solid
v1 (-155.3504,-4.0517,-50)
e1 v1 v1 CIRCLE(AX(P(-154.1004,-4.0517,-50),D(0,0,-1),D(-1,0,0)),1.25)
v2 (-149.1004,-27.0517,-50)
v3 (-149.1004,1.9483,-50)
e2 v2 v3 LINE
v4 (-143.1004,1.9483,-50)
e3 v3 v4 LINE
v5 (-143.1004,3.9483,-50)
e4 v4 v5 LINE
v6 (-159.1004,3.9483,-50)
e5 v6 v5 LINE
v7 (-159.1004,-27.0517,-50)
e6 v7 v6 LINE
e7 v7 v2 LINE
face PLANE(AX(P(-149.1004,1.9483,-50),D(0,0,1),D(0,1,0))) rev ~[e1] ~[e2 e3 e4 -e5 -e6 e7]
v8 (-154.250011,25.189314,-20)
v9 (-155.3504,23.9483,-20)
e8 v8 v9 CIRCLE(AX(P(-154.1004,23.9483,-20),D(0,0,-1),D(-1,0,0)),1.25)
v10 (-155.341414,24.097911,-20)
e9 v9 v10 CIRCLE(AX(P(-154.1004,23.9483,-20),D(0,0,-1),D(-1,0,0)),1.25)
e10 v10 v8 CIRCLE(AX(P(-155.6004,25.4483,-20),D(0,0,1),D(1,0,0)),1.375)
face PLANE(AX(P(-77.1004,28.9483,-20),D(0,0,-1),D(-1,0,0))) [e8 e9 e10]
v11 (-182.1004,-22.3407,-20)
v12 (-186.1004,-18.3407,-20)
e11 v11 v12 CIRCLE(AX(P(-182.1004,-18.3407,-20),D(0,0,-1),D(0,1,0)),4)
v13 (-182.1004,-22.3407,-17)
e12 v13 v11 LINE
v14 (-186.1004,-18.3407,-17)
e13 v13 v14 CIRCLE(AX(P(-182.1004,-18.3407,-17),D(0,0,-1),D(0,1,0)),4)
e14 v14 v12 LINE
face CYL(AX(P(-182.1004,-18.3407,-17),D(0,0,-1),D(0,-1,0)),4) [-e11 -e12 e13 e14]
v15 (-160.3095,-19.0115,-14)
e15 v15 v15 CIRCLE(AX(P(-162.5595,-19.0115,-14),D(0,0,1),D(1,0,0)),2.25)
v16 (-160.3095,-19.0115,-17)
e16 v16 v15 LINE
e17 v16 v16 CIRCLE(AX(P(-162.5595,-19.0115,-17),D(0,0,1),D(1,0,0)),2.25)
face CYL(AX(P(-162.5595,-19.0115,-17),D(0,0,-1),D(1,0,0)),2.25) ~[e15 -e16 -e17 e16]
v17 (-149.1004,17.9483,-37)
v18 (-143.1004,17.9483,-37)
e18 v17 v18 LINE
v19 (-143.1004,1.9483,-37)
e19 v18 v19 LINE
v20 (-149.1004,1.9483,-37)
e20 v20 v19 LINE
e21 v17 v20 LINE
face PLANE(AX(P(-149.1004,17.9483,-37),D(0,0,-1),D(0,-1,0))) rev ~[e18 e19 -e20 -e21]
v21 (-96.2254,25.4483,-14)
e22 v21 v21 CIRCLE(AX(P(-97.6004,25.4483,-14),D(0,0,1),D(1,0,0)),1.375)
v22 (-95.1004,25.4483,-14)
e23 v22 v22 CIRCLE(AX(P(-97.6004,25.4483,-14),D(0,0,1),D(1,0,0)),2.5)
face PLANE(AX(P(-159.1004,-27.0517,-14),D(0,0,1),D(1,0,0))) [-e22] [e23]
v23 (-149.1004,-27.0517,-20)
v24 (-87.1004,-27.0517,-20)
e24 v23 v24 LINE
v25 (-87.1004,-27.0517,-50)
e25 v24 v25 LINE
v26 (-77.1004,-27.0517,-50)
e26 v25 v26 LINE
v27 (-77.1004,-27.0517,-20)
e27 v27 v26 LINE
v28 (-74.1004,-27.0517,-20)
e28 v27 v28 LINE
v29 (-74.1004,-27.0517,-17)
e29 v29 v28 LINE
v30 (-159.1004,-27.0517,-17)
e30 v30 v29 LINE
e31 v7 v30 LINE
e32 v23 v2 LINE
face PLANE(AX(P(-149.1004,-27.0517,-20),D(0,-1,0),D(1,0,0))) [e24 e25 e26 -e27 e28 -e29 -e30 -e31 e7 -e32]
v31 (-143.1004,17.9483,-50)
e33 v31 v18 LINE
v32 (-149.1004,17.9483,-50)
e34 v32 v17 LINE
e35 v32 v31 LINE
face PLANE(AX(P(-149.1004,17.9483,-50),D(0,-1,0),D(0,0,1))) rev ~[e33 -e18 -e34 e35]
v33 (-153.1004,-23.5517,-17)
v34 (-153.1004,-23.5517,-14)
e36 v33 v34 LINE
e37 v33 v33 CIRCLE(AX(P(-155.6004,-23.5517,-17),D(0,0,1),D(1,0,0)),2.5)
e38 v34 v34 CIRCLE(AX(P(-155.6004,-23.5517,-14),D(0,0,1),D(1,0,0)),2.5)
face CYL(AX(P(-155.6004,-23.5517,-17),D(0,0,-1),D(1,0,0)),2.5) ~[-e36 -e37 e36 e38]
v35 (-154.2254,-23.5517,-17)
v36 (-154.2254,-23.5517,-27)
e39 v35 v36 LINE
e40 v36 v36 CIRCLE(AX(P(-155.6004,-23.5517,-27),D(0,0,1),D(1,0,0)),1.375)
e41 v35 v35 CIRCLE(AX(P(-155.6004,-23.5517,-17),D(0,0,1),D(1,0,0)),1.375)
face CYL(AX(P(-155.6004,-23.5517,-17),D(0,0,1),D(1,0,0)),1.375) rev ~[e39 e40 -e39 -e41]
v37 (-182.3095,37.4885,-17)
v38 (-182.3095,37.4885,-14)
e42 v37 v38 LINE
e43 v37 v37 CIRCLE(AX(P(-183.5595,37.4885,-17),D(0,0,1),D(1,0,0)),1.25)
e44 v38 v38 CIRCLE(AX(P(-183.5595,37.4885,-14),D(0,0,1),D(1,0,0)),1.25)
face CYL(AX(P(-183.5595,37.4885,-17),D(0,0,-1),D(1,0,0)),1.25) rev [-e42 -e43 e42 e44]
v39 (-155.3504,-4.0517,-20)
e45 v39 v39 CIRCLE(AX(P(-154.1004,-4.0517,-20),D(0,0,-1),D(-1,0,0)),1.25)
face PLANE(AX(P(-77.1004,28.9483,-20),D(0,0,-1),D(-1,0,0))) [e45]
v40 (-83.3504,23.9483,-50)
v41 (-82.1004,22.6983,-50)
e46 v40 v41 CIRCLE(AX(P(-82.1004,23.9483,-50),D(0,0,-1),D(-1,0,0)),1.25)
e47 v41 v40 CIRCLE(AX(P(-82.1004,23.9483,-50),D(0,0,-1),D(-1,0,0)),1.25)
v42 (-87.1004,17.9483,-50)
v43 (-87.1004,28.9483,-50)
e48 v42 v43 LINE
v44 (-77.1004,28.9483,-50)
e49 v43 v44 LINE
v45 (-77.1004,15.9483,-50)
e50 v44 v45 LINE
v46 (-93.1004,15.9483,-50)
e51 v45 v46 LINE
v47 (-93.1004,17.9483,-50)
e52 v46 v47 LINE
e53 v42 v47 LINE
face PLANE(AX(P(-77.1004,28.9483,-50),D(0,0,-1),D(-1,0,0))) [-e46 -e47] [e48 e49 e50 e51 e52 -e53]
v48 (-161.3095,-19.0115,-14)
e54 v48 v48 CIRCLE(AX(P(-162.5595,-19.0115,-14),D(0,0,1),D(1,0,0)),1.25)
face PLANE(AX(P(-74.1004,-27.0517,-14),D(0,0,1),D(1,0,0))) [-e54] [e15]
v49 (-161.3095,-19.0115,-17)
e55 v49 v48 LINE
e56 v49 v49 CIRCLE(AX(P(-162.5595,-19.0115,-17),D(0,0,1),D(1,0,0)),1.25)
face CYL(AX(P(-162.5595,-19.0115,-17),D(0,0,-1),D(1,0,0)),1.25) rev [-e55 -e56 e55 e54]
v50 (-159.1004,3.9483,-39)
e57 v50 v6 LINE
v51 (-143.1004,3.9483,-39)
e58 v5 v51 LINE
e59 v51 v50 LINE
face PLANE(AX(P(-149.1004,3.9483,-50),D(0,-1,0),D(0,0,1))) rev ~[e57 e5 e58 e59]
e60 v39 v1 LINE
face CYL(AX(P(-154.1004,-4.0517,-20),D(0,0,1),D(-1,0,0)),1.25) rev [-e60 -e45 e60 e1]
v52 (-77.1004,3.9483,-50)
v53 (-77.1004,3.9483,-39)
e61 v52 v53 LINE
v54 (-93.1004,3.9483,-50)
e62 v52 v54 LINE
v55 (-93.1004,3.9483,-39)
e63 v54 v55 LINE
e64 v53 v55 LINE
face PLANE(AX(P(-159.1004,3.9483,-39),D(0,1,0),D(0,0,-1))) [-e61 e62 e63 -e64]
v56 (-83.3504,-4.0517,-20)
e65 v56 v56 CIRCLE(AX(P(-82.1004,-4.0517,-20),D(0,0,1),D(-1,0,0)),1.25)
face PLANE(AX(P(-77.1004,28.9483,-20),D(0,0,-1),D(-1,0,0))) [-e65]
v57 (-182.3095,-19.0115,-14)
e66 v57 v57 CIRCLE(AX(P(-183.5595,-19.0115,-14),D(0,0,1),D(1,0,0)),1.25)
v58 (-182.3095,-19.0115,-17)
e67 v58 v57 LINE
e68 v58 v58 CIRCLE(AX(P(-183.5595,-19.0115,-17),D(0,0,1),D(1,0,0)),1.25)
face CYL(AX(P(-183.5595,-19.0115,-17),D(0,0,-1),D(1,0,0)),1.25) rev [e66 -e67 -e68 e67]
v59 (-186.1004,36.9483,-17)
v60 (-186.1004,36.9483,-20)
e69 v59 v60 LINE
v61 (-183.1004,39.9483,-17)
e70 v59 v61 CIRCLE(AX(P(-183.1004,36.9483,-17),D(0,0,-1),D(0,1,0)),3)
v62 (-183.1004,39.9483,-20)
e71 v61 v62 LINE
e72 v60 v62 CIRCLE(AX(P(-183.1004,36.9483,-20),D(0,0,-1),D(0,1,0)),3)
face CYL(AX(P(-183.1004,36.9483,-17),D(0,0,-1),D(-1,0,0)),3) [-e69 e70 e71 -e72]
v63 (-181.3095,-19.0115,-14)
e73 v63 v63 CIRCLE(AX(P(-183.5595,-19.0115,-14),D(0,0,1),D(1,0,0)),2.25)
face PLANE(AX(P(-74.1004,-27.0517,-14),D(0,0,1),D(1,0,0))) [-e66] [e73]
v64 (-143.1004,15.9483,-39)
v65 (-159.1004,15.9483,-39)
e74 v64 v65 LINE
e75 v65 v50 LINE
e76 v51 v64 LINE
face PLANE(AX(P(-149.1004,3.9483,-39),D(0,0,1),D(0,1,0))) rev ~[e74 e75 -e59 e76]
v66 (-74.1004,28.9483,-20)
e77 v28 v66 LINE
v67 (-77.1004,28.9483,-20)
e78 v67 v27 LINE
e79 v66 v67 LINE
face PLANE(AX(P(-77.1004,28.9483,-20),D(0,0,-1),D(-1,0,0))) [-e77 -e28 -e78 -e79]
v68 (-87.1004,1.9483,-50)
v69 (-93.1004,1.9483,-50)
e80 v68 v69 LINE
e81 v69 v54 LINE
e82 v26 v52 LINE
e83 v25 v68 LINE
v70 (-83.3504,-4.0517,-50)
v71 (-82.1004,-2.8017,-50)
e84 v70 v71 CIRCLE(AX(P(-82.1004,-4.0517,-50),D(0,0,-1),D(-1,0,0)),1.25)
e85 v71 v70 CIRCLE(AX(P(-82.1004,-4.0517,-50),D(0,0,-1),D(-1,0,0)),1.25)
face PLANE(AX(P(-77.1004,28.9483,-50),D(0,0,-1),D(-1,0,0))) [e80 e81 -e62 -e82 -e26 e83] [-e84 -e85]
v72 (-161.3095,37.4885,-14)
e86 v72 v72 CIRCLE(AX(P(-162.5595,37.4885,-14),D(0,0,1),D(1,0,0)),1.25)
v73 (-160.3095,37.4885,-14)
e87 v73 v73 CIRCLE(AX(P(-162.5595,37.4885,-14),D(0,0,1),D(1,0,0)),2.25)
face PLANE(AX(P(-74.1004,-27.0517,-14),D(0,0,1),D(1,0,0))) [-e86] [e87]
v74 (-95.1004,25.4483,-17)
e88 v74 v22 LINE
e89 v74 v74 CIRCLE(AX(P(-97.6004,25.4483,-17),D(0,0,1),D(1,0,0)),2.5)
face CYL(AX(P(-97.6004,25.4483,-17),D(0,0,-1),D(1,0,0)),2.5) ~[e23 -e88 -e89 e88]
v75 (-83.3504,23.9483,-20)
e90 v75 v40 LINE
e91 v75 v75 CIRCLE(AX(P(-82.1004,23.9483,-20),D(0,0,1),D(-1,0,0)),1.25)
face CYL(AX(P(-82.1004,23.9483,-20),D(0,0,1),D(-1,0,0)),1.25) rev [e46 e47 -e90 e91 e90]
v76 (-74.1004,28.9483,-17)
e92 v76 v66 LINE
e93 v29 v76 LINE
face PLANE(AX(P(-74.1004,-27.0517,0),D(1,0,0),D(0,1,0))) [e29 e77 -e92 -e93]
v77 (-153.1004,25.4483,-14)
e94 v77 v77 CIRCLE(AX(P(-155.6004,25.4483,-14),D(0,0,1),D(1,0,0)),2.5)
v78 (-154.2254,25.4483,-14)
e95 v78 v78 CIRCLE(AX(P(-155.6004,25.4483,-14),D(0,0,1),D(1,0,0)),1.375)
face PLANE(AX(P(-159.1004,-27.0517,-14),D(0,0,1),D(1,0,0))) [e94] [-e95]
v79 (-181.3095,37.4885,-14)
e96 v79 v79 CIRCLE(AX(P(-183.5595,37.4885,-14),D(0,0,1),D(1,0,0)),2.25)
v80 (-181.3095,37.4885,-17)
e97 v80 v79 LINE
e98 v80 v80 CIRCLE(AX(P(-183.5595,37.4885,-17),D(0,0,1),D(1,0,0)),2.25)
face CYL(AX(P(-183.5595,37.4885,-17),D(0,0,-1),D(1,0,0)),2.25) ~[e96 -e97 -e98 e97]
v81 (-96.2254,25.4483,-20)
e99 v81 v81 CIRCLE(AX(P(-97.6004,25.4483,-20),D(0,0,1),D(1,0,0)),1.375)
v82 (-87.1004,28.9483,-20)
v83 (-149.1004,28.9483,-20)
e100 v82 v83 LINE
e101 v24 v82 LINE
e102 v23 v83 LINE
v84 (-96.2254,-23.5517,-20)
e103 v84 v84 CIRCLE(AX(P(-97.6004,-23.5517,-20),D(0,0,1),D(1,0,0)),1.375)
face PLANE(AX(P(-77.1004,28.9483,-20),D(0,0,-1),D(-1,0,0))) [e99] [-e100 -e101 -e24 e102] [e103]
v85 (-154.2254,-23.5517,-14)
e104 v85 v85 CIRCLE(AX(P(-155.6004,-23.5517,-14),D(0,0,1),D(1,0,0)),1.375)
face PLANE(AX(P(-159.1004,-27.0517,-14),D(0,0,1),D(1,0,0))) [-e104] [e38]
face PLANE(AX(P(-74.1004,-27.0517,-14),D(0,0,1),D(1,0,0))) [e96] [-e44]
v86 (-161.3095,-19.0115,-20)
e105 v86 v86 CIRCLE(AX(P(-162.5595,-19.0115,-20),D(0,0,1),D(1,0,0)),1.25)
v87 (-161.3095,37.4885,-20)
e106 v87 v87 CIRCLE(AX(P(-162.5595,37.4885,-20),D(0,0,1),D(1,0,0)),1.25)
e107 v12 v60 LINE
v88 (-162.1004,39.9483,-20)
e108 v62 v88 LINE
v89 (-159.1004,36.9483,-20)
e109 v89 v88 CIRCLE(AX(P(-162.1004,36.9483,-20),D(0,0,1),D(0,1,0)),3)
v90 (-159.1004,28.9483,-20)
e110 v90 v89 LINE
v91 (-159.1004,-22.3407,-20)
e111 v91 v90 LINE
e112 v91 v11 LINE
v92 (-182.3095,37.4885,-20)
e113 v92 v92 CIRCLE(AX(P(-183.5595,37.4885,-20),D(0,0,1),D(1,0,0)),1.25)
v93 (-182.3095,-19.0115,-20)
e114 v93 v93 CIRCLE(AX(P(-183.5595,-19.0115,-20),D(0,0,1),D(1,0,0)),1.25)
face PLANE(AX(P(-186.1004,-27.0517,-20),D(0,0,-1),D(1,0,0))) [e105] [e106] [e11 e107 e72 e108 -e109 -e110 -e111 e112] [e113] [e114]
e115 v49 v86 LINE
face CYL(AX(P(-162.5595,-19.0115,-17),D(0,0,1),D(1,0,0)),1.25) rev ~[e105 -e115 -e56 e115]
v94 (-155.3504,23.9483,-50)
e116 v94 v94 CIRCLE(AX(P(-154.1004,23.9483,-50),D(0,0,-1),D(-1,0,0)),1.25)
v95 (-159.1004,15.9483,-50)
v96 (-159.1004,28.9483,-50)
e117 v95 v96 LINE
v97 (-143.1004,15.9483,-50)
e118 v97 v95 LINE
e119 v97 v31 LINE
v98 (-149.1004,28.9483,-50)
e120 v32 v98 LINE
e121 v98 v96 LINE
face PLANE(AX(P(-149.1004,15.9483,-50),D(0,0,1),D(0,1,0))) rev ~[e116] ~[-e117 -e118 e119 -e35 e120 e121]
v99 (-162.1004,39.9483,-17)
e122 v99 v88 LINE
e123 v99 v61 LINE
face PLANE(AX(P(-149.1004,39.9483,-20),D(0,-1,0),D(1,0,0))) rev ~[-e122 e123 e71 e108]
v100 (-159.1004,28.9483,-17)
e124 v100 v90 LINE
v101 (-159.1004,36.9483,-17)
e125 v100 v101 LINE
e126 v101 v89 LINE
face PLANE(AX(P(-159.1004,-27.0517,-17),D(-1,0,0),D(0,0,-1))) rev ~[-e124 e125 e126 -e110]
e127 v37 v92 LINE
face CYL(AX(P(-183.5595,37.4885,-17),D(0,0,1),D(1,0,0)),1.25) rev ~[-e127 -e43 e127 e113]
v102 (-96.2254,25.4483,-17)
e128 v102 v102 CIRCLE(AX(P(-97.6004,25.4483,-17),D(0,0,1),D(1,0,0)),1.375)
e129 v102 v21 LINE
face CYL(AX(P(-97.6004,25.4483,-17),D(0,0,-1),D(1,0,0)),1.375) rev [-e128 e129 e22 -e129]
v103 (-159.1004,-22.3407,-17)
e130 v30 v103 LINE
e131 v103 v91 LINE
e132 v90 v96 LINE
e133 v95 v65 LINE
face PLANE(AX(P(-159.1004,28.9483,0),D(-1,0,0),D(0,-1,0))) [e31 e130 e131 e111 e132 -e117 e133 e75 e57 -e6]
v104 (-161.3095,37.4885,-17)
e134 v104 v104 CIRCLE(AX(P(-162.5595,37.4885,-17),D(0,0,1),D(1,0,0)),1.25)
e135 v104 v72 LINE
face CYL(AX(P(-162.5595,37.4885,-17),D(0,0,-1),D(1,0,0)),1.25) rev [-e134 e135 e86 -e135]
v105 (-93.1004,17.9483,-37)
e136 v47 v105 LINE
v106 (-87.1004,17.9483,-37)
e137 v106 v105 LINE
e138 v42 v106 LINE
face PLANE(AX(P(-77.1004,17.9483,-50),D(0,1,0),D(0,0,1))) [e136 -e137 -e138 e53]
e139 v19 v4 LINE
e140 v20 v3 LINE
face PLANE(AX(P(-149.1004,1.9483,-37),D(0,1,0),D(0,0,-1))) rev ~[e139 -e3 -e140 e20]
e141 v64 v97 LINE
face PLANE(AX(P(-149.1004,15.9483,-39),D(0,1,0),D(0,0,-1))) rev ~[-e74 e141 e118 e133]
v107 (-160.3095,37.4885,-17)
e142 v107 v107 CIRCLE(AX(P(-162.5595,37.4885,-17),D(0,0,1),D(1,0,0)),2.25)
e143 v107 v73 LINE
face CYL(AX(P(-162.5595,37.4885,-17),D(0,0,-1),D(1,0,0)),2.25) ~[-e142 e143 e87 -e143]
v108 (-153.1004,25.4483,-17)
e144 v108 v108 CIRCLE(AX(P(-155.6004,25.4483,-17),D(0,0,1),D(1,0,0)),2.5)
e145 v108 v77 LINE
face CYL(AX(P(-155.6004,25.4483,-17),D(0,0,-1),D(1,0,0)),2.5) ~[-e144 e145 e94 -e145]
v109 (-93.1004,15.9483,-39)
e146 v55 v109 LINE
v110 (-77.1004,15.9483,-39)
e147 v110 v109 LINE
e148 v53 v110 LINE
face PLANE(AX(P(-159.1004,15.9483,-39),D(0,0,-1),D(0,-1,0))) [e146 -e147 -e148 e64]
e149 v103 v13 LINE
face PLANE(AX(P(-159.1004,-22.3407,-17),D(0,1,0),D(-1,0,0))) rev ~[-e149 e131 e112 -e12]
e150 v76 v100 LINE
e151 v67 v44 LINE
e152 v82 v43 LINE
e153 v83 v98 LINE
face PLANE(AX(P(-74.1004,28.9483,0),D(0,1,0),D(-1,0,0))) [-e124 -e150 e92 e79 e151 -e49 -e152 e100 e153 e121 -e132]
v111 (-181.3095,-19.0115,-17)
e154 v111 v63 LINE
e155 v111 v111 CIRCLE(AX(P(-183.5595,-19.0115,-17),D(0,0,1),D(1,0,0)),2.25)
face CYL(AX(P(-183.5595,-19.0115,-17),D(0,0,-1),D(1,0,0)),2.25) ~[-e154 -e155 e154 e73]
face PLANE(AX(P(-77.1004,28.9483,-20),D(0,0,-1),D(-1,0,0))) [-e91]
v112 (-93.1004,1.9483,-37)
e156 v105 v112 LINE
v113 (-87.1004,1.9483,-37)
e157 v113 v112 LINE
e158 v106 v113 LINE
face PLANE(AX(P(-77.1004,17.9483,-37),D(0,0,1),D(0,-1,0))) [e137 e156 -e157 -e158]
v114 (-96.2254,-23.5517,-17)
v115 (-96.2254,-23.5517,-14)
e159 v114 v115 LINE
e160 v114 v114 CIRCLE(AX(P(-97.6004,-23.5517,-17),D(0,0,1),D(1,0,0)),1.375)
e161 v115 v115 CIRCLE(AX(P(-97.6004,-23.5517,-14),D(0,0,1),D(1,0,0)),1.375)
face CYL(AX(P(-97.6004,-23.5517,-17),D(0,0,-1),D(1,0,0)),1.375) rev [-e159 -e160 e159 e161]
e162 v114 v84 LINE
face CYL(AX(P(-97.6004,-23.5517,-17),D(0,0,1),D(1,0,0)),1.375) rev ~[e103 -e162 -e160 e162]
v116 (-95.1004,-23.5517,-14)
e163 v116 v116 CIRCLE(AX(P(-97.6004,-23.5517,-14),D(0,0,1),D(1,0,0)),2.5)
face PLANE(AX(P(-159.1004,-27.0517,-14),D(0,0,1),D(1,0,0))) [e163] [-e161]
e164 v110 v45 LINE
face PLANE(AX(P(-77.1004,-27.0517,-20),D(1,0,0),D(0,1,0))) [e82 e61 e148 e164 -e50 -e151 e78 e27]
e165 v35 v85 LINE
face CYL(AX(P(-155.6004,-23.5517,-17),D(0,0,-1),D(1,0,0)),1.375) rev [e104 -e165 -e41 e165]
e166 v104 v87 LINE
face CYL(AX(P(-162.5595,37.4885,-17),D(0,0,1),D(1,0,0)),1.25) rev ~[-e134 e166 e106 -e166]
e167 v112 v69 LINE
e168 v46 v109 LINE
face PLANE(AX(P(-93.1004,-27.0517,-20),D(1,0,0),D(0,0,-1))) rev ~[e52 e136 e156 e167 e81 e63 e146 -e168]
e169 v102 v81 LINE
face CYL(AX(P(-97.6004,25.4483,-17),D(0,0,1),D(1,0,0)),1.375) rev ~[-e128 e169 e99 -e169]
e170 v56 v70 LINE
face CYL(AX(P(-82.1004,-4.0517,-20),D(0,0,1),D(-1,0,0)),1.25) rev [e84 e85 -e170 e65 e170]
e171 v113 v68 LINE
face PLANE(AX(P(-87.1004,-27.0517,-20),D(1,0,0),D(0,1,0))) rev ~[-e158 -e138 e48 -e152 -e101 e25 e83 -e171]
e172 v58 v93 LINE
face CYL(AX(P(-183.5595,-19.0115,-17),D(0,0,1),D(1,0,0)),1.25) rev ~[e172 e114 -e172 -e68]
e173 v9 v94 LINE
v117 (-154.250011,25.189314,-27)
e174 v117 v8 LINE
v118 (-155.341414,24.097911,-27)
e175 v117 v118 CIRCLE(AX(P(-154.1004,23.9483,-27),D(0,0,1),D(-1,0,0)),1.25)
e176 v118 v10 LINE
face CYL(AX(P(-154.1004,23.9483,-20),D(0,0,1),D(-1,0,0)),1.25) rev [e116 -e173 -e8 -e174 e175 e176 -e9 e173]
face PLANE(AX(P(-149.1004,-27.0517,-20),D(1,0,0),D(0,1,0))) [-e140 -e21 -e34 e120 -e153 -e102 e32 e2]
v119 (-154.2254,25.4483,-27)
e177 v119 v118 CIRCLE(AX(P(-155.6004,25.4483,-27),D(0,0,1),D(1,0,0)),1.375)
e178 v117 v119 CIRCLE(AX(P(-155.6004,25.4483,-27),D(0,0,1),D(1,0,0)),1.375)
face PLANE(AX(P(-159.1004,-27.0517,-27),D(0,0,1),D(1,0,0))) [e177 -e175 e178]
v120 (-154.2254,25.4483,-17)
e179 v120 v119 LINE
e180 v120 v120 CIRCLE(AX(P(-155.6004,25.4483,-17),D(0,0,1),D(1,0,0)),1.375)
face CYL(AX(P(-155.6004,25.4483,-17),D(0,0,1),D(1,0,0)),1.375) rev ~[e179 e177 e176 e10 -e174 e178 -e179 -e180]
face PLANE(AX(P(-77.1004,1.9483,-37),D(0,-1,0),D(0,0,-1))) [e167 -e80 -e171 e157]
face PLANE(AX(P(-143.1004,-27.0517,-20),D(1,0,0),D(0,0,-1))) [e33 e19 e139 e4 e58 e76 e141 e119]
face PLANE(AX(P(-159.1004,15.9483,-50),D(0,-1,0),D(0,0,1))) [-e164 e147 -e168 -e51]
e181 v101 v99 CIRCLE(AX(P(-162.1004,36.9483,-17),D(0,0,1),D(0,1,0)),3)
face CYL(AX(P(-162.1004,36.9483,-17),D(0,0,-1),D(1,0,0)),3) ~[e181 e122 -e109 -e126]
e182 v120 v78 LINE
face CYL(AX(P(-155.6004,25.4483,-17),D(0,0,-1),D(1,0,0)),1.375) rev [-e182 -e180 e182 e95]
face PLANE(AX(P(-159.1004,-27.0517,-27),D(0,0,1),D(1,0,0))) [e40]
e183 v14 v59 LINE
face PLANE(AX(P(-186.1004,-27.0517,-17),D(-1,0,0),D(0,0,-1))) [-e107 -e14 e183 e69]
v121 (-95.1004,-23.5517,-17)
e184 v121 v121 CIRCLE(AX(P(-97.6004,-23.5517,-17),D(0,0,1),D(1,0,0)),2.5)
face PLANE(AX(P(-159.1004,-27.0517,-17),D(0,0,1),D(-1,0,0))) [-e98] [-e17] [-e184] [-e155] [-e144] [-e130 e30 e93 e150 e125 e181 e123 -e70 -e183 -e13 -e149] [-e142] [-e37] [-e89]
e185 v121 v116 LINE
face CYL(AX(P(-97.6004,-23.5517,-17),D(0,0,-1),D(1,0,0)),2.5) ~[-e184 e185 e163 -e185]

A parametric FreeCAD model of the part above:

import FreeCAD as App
import Part
import Sketcher


def edges_at(feature, points):
    """Names of the edges that pass closest to the given points."""
    edges = feature.Shape.Edges
    near = lambda p: min(range(len(edges)), key=lambda i: edges[i].distToShape(Part.Vertex(*p))[0])
    return sorted({f"Edge{near(p) + 1}" for p in points})


def add_polygon(sketch, points):
    """Adds a closed chain of lines whose ends are joined by coincident constraints."""
    first, n = sketch.GeometryCount, len(points)
    for a, b in zip(points, points[1:] + points[:1]):
        sketch.addGeometry(Part.LineSegment(App.Vector(*a, 0), App.Vector(*b, 0)), False)
    for i in range(n):
        sketch.addConstraint(Sketcher.Constraint("Coincident", first + i, 2, first + (i + 1) % n, 1))

doc = App.newDocument("Part")
body = doc.addObject("PartDesign::Body", "Body")
body.AllowCompound = True

sketch1 = body.newObject("Sketcher::SketchObject", "Sketch")
sketch1.AttachmentSupport = (doc.getObject("XY_Plane"), [""])
sketch1.MapMode = "FlatFace"
add_polygon(sketch1, [(-74, -27), (-159, -27), (-159, 29), (-74, 29)])
sketch1.addConstraint([
    Sketcher.Constraint("Horizontal", 0),
    Sketcher.Constraint("Vertical", 1),
    Sketcher.Constraint("Horizontal", 2),
    Sketcher.Constraint("Vertical", 3),
    Sketcher.Constraint("DistanceX", 0, 2, 0, 1, 85.0),
    Sketcher.Constraint("DistanceY", 1, 1, 1, 2, 56.0),
    Sketcher.Constraint("DistanceX", 0, 2, -1, 1, 159.1004),
    Sketcher.Constraint("DistanceY", 0, 2, -1, 1, 27.0517),
])
pad1 = body.newObject("PartDesign::Pad", "Pad")
pad1.Profile = sketch1
pad1.Length = 20
pad1.Reversed = True

sketch2 = body.newObject("Sketcher::SketchObject", "Sketch001")
sketch2.AttachmentSupport = (doc.getObject("XY_Plane"), [""])
sketch2.MapMode = "FlatFace"
add_polygon(sketch2, [(-51.5, 34.8), (-168.2, 34.8), (-168.2, -41.7), (-51.5, -41.7)])
sketch2.addGeometry(Part.Circle(App.Vector(-155.6, -23.6, 0), App.Vector(0, 0, 1), 1.4), False)
sketch2.addGeometry(Part.Circle(App.Vector(-97.6, -23.6, 0), App.Vector(0, 0, 1), 1.4), False)
sketch2.addGeometry(Part.Circle(App.Vector(-155.6, 25.4, 0), App.Vector(0, 0, 1), 1.4), False)
sketch2.addGeometry(Part.Circle(App.Vector(-97.6, 25.4, 0), App.Vector(0, 0, 1), 1.4), False)
sketch2.addConstraint([
    Sketcher.Constraint("Horizontal", 0),
    Sketcher.Constraint("Vertical", 1),
    Sketcher.Constraint("Horizontal", 2),
    Sketcher.Constraint("Vertical", 3),
    Sketcher.Constraint("Equal", 4, 5),
    Sketcher.Constraint("Equal", 5, 6),
    Sketcher.Constraint("Equal", 6, 7),
    Sketcher.Constraint("Horizontal", 4, 3, 5, 3),
    Sketcher.Constraint("Horizontal", 6, 3, 7, 3),
    Sketcher.Constraint("Vertical", 4, 3, 6, 3),
    Sketcher.Constraint("Vertical", 5, 3, 7, 3),
    Sketcher.Constraint("Diameter", 4, 2.75),
    Sketcher.Constraint("DistanceX", 4, 3, 5, 3, 58.0),
    Sketcher.Constraint("DistanceY", 4, 3, 6, 3, 49.0),
    Sketcher.Constraint("DistanceX", 0, 2, 0, 1, 116.712),
    Sketcher.Constraint("DistanceY", 1, 2, 1, 1, 76.511),
    Sketcher.Constraint("DistanceY", -1, 1, 0, 2, 34.785),
    Sketcher.Constraint("DistanceX", 5, 3, 2, 2, 46.085),
    Sketcher.Constraint("DistanceX", 4, 3, -1, 1, 155.6004),
    Sketcher.Constraint("DistanceY", 4, 3, -1, 1, 23.5517),
])
pocket1 = body.newObject("PartDesign::Pocket", "Pocket")
pocket1.Profile = sketch2
pocket1.Length = 10

sketch3 = body.newObject("Sketcher::SketchObject", "Sketch002")
sketch3.AttachmentSupport = (doc.getObject("XY_Plane"), [""])
sketch3.MapMode = "FlatFace"
sketch3.AttachmentOffset = App.Placement(App.Vector(0, 0, -20), App.Rotation())
add_polygon(sketch3, [(-77.1, 28.9), (-77.1, -27.1), (-87.1, -27.1), (-87.1, 28.9)])
sketch3.addGeometry(Part.Circle(App.Vector(-82.1, -4.1, 0), App.Vector(0, 0, 1), 1.2), False)
sketch3.addGeometry(Part.Circle(App.Vector(-82.1, 23.9, 0), App.Vector(0, 0, 1), 1.2), False)
add_polygon(sketch3, [(-149.1, 28.9), (-149.1, -27.1), (-159.1, -27.1), (-159.1, 28.9)])
sketch3.addGeometry(Part.Circle(App.Vector(-154.1, -4.1, 0), App.Vector(0, 0, 1), 1.2), False)
sketch3.addGeometry(Part.Circle(App.Vector(-154.1, 23.9, 0), App.Vector(0, 0, 1), 1.2), False)
sketch3.addConstraint([
    Sketcher.Constraint("Vertical", 0),
    Sketcher.Constraint("Horizontal", 1),
    Sketcher.Constraint("Vertical", 2),
    Sketcher.Constraint("Horizontal", 3),
    Sketcher.Constraint("Vertical", 6),
    Sketcher.Constraint("Horizontal", 7),
    Sketcher.Constraint("Vertical", 8),
    Sketcher.Constraint("Horizontal", 9),
    Sketcher.Constraint("Equal", 4, 5),
    Sketcher.Constraint("Equal", 5, 10),
    Sketcher.Constraint("Equal", 10, 11),
    Sketcher.Constraint("Horizontal", 4, 3, 10, 3),
    Sketcher.Constraint("Horizontal", 5, 3, 11, 3),
    Sketcher.Constraint("Horizontal", 1, 2, 6, 2),
    Sketcher.Constraint("Horizontal", 3, 2, 8, 2),
    Sketcher.Constraint("Vertical", 4, 3, 5, 3),
    Sketcher.Constraint("Vertical", 10, 3, 11, 3),
    Sketcher.Constraint("Equal", 3, 7),
    Sketcher.Constraint("Diameter", 4, 2.5),
    Sketcher.Constraint("DistanceX", 1, 2, 1, 1, 10.0),
    Sketcher.Constraint("DistanceY", 4, 3, 5, 3, 28.0),
    Sketcher.Constraint("DistanceX", 10, 3, 4, 3, 72.0),
    Sketcher.Constraint("DistanceX", 4, 3, 0, 2, 5.0),
    Sketcher.Constraint("DistanceY", 5, 3, 2, 2, 5.0),
    Sketcher.Constraint("DistanceX", 10, 3, 6, 2, 5.0),
    Sketcher.Constraint("DistanceY", 0, 2, 0, 1, 56.0),
    Sketcher.Constraint("DistanceX", 4, 3, -1, 1, 82.1004),
    Sketcher.Constraint("DistanceY", 4, 3, -1, 1, 4.0517),
])
pad2 = body.newObject("PartDesign::Pad", "Pad001")
pad2.Profile = sketch3
pad2.Length = 30
pad2.Reversed = True

sketch4 = body.newObject("Sketcher::SketchObject", "Sketch003")
sketch4.AttachmentSupport = (doc.getObject("YZ_Plane"), [""])
sketch4.MapMode = "FlatFace"
sketch4.AttachmentOffset = App.Placement(App.Vector(0, 0, -159.1004), App.Rotation())
add_polygon(sketch4, [(4, -50), (4, -39), (16, -39), (16, -50)])
sketch4.addConstraint([
    Sketcher.Constraint("Vertical", 0),
    Sketcher.Constraint("Horizontal", 1),
    Sketcher.Constraint("Vertical", 2),
    Sketcher.Constraint("Horizontal", 3),
    Sketcher.Constraint("DistanceX", 1, 1, 1, 2, 12.0),
    Sketcher.Constraint("DistanceY", 0, 1, 0, 2, 11.0),
    Sketcher.Constraint("DistanceY", 0, 2, -1, 1, 39.0),
    Sketcher.Constraint("DistanceX", -1, 1, 0, 2, 3.9483),
])
pocket2 = body.newObject("PartDesign::Pocket", "Pocket001")
pocket2.Profile = sketch4
pocket2.Length = 100
pocket2.Reversed = True

sketch5 = body.newObject("Sketcher::SketchObject", "Sketch004")
sketch5.AttachmentSupport = (doc.getObject("YZ_Plane"), [""])
sketch5.MapMode = "FlatFace"
sketch5.AttachmentOffset = App.Placement(App.Vector(0, 0, -149.1004), App.Rotation())
add_polygon(sketch5, [(17.9, -37), (1.9, -37), (1.9, -50), (3.9, -50), (3.9, -39), (15.9, -39), (15.9, -50), (17.9, -50)])
sketch5.addConstraint([
    Sketcher.Constraint("Horizontal", 0),
    Sketcher.Constraint("Vertical", 1),
    Sketcher.Constraint("Horizontal", 2),
    Sketcher.Constraint("Vertical", 3),
    Sketcher.Constraint("Horizontal", 4),
    Sketcher.Constraint("Vertical", 5),
    Sketcher.Constraint("Horizontal", 6),
    Sketcher.Constraint("Vertical", 7),
    Sketcher.Constraint("Horizontal", 2, 2, 5, 2),
    Sketcher.Constraint("Equal", 2, 6),
    Sketcher.Constraint("DistanceX", 0, 2, 0, 1, 16.0),
    Sketcher.Constraint("DistanceY", 1, 2, 1, 1, 13.0),
    Sketcher.Constraint("DistanceX", 2, 1, 2, 2, 2.0),
    Sketcher.Constraint("DistanceY", 3, 1, 3, 2, 11.0),
    Sketcher.Constraint("DistanceY", 0, 2, -1, 1, 37.0),
    Sketcher.Constraint("DistanceX", -1, 1, 0, 2, 1.9483),
])
pad3 = body.newObject("PartDesign::Pad", "Pad002")
pad3.Profile = sketch5
pad3.Length = 6

sketch6 = body.newObject("Sketcher::SketchObject", "Sketch005")
sketch6.AttachmentSupport = (doc.getObject("YZ_Plane"), [""])
sketch6.MapMode = "FlatFace"
sketch6.AttachmentOffset = App.Placement(App.Vector(0, 0, -77.1004), App.Rotation())
add_polygon(sketch6, [(15.9, -39), (15.9, -50), (17.9, -50), (17.9, -37), (1.9, -37), (1.9, -50), (3.9, -50), (3.9, -39)])
sketch6.addConstraint([
    Sketcher.Constraint("Vertical", 0),
    Sketcher.Constraint("Horizontal", 1),
    Sketcher.Constraint("Vertical", 2),
    Sketcher.Constraint("Horizontal", 3),
    Sketcher.Constraint("Vertical", 4),
    Sketcher.Constraint("Horizontal", 5),
    Sketcher.Constraint("Vertical", 6),
    Sketcher.Constraint("Horizontal", 7),
    Sketcher.Constraint("Horizontal", 1, 2, 4, 2),
    Sketcher.Constraint("Equal", 1, 5),
    Sketcher.Constraint("DistanceX", 1, 1, 1, 2, 2.0),
    Sketcher.Constraint("DistanceX", 3, 2, 3, 1, 16.0),
    Sketcher.Constraint("DistanceY", 2, 1, 2, 2, 13.0),
    Sketcher.Constraint("DistanceY", 6, 2, 3, 2, 2.0),
    Sketcher.Constraint("DistanceY", 0, 2, -1, 1, 50.0),
    Sketcher.Constraint("DistanceX", -1, 1, 0, 2, 15.9483),
])
pad4 = body.newObject("PartDesign::Pad", "Pad003")
pad4.Profile = sketch6
pad4.Length = 16
pad4.Reversed = True

sketch7 = body.newObject("Sketcher::SketchObject", "Sketch006")
sketch7.AttachmentSupport = (doc.getObject("XZ_Plane"), [""])
sketch7.MapMode = "FlatFace"
sketch7.AttachmentOffset = App.Placement(App.Vector(0, 0, 27.0517), App.Rotation())
add_polygon(sketch7, [(-159, -8), (-159, -17), (-62, -17), (-62, -8)])
sketch7.addConstraint([
    Sketcher.Constraint("Vertical", 0),
    Sketcher.Constraint("Horizontal", 1),
    Sketcher.Constraint("Vertical", 2),
    Sketcher.Constraint("Horizontal", 3),
    Sketcher.Constraint("DistanceY", 0, 2, -1, 1, 17.0),
    Sketcher.Constraint("DistanceX", 1, 1, 1, 2, 97.2238),
    Sketcher.Constraint("DistanceY", 0, 2, 0, 1, 9.4478),
    Sketcher.Constraint("DistanceX", 0, 2, -1, 1, 159.1004),
])
pocket3 = body.newObject("PartDesign::Pocket", "Pocket002")
pocket3.Profile = sketch7
pocket3.Length = 60

sketch8 = body.newObject("Sketcher::SketchObject", "Sketch007")
sketch8.AttachmentSupport = (doc.getObject("XY_Plane"), [""])
sketch8.MapMode = "FlatFace"
add_polygon(sketch8, [(-66, -39), (-66, 39), (-168, 39), (-168, -39)])
sketch8.addConstraint([
    Sketcher.Constraint("Vertical", 0),
    Sketcher.Constraint("Horizontal", 1),
    Sketcher.Constraint("Vertical", 2),
    Sketcher.Constraint("Horizontal", 3),
    Sketcher.Constraint("DistanceY", 0, 1, 0, 2, 77.569),
    Sketcher.Constraint("DistanceX", 1, 2, 1, 1, 102.5565),
    Sketcher.Constraint("DistanceX", 1, 2, -1, 1, 168.089),
    Sketcher.Constraint("DistanceY", -1, 1, 0, 2, 38.6056),
])
pocket4 = body.newObject("PartDesign::Pocket", "Pocket003")
pocket4.Profile = sketch8
pocket4.Length = 10

sketch9 = body.newObject("Sketcher::SketchObject", "Sketch008")
sketch9.AttachmentSupport = (doc.getObject("XY_Plane"), [""])
sketch9.MapMode = "FlatFace"
sketch9.AttachmentOffset = App.Placement(App.Vector(0, 0, -17), App.Rotation())
sketch9.addGeometry([
    Part.Circle(App.Vector(-97.6, 25.4, 0), App.Vector(0, 0, 1), 1.4),
    Part.Circle(App.Vector(-97.6, -23.6, 0), App.Vector(0, 0, 1), 1.4),
    Part.Circle(App.Vector(-155.6, -23.6, 0), App.Vector(0, 0, 1), 1.4),
    Part.Circle(App.Vector(-155.6, 25.4, 0), App.Vector(0, 0, 1), 1.4),
], False)
sketch9.addConstraint([
    Sketcher.Constraint("Equal", 0, 1),
    Sketcher.Constraint("Equal", 1, 2),
    Sketcher.Constraint("Equal", 2, 3),
    Sketcher.Constraint("Horizontal", 1, 3, 2, 3),
    Sketcher.Constraint("Horizontal", 0, 3, 3, 3),
    Sketcher.Constraint("Vertical", 0, 3, 1, 3),
    Sketcher.Constraint("Vertical", 2, 3, 3, 3),
    Sketcher.Constraint("Diameter", 0, 2.75),
    Sketcher.Constraint("DistanceY", 1, 3, 0, 3, 49.0),
    Sketcher.Constraint("DistanceX", 2, 3, 1, 3, 58.0),
    Sketcher.Constraint("DistanceX", 0, 3, -1, 1, 97.6004),
    Sketcher.Constraint("DistanceY", -1, 1, 0, 3, 25.4483),
])
pocket5 = body.newObject("PartDesign::Pocket", "Pocket004")
pocket5.Profile = sketch9
pocket5.Length = 10

sketch10 = body.newObject("Sketcher::SketchObject", "Sketch009")
sketch10.AttachmentSupport = (doc.getObject("XY_Plane"), [""])
sketch10.MapMode = "FlatFace"
sketch10.AttachmentOffset = App.Placement(App.Vector(0, 0, -17), App.Rotation())
sketch10.addGeometry([
    Part.Circle(App.Vector(-97.6, 25.4, 0), App.Vector(0, 0, 1), 2.5),
    Part.Circle(App.Vector(-97.6, 25.4, 0), App.Vector(0, 0, 1), 1.4),
    Part.Circle(App.Vector(-97.6, -23.6, 0), App.Vector(0, 0, 1), 2.5),
    Part.Circle(App.Vector(-97.6, -23.6, 0), App.Vector(0, 0, 1), 1.4),
    Part.Circle(App.Vector(-155.6, -23.6, 0), App.Vector(0, 0, 1), 2.5),
    Part.Circle(App.Vector(-155.6, -23.6, 0), App.Vector(0, 0, 1), 1.4),
    Part.Circle(App.Vector(-155.6, 25.4, 0), App.Vector(0, 0, 1), 2.5),
    Part.Circle(App.Vector(-155.6, 25.4, 0), App.Vector(0, 0, 1), 1.4),
], False)
sketch10.addConstraint([
    Sketcher.Constraint("Coincident", 1, 3, 0, 3),
    Sketcher.Constraint("Coincident", 3, 3, 2, 3),
    Sketcher.Constraint("Coincident", 5, 3, 4, 3),
    Sketcher.Constraint("Coincident", 7, 3, 6, 3),
    Sketcher.Constraint("Equal", 0, 2),
    Sketcher.Constraint("Equal", 1, 3),
    Sketcher.Constraint("Equal", 2, 4),
    Sketcher.Constraint("Equal", 3, 5),
    Sketcher.Constraint("Equal", 4, 6),
    Sketcher.Constraint("Equal", 5, 7),
    Sketcher.Constraint("Horizontal", 3, 3, 4, 3),
    Sketcher.Constraint("Horizontal", 1, 3, 6, 3),
    Sketcher.Constraint("Vertical", 1, 3, 2, 3),
    Sketcher.Constraint("Vertical", 5, 3, 6, 3),
    Sketcher.Constraint("Diameter", 0, 5.0),
    Sketcher.Constraint("Diameter", 1, 2.75),
    Sketcher.Constraint("DistanceY", 2, 3, 0, 3, 49.0),
    Sketcher.Constraint("DistanceX", 4, 3, 2, 3, 58.0),
    Sketcher.Constraint("DistanceX", 0, 3, -1, 1, 97.6004),
    Sketcher.Constraint("DistanceY", -1, 1, 0, 3, 25.4483),
])
pad5 = body.newObject("PartDesign::Pad", "Pad004")
pad5.Profile = sketch10
pad5.Length = 3

sketch11 = body.newObject("Sketcher::SketchObject", "Sketch010")
sketch11.AttachmentSupport = (doc.getObject("XZ_Plane"), [""])
sketch11.MapMode = "FlatFace"
sketch11.AttachmentOffset = App.Placement(App.Vector(0, 0, 27.0517), App.Rotation())
add_polygon(sketch11, [(-159.1, -20), (-159.1, -17), (-186.1, -17), (-186.1, -20)])
sketch11.addConstraint([
    Sketcher.Constraint("Vertical", 0),
    Sketcher.Constraint("Horizontal", 1),
    Sketcher.Constraint("Vertical", 2),
    Sketcher.Constraint("Horizontal", 3),
    Sketcher.Constraint("DistanceX", 1, 2, 1, 1, 27.0),
    Sketcher.Constraint("DistanceY", 0, 1, 0, 2, 3.0),
    Sketcher.Constraint("DistanceY", 0, 2, -1, 1, 17.0),
    Sketcher.Constraint("DistanceX", 0, 2, -1, 1, 159.1004),
])
pad6 = body.newObject("PartDesign::Pad", "Pad005")
pad6.Profile = sketch11
pad6.Length = 67
pad6.Reversed = True

sketch12 = body.newObject("Sketcher::SketchObject", "Sketch011")
sketch12.AttachmentSupport = (doc.getObject("XY_Plane"), [""])
sketch12.MapMode = "FlatFace"
sketch12.AttachmentOffset = App.Placement(App.Vector(0, 0, -17), App.Rotation())
sketch12.addGeometry([
    Part.Circle(App.Vector(-162.6, 37.5, 0), App.Vector(0, 0, 1), 1.2),
    Part.Circle(App.Vector(-162.6, -19, 0), App.Vector(0, 0, 1), 1.2),
    Part.Circle(App.Vector(-183.6, 37.5, 0), App.Vector(0, 0, 1), 1.2),
    Part.Circle(App.Vector(-183.6, -19, 0), App.Vector(0, 0, 1), 1.2),
], False)
sketch12.addConstraint([
    Sketcher.Constraint("Equal", 0, 1),
    Sketcher.Constraint("Equal", 1, 2),
    Sketcher.Constraint("Equal", 2, 3),
    Sketcher.Constraint("Horizontal", 0, 3, 2, 3),
    Sketcher.Constraint("Horizontal", 1, 3, 3, 3),
    Sketcher.Constraint("Vertical", 0, 3, 1, 3),
    Sketcher.Constraint("Vertical", 2, 3, 3, 3),
    Sketcher.Constraint("Diameter", 0, 2.5),
    Sketcher.Constraint("DistanceX", 2, 3, 0, 3, 21.0),
    Sketcher.Constraint("DistanceY", 1, 3, 0, 3, 56.5),
    Sketcher.Constraint("DistanceX", 0, 3, -1, 1, 162.5595),
    Sketcher.Constraint("DistanceY", -1, 1, 0, 3, 37.4885),
])
pocket6 = body.newObject("PartDesign::Pocket", "Pocket005")
pocket6.Profile = sketch12
pocket6.Length = 56

sketch13 = body.newObject("Sketcher::SketchObject", "Sketch012")
sketch13.AttachmentSupport = (doc.getObject("XY_Plane"), [""])
sketch13.MapMode = "FlatFace"
sketch13.AttachmentOffset = App.Placement(App.Vector(0, 0, -17), App.Rotation())
sketch13.addGeometry([
    Part.Circle(App.Vector(-162.6, 37.5, 0), App.Vector(0, 0, 1), 2.2),
    Part.Circle(App.Vector(-162.6, 37.5, 0), App.Vector(0, 0, 1), 1.2),
    Part.Circle(App.Vector(-183.6, 37.5, 0), App.Vector(0, 0, 1), 2.2),
    Part.Circle(App.Vector(-183.6, 37.5, 0), App.Vector(0, 0, 1), 1.2),
    Part.Circle(App.Vector(-162.6, -19, 0), App.Vector(0, 0, 1), 2.2),
    Part.Circle(App.Vector(-162.6, -19, 0), App.Vector(0, 0, 1), 1.2),
    Part.Circle(App.Vector(-183.6, -19, 0), App.Vector(0, 0, 1), 2.2),
    Part.Circle(App.Vector(-183.6, -19, 0), App.Vector(0, 0, 1), 1.2),
], False)
sketch13.addConstraint([
    Sketcher.Constraint("Coincident", 1, 3, 0, 3),
    Sketcher.Constraint("Coincident", 3, 3, 2, 3),
    Sketcher.Constraint("Coincident", 5, 3, 4, 3),
    Sketcher.Constraint("Coincident", 7, 3, 6, 3),
    Sketcher.Constraint("Equal", 0, 2),
    Sketcher.Constraint("Equal", 1, 3),
    Sketcher.Constraint("Equal", 2, 4),
    Sketcher.Constraint("Equal", 3, 5),
    Sketcher.Constraint("Equal", 4, 6),
    Sketcher.Constraint("Equal", 5, 7),
    Sketcher.Constraint("Horizontal", 1, 3, 2, 3),
    Sketcher.Constraint("Horizontal", 5, 3, 6, 3),
    Sketcher.Constraint("Vertical", 1, 3, 4, 3),
    Sketcher.Constraint("Vertical", 3, 3, 6, 3),
    Sketcher.Constraint("Diameter", 0, 4.5),
    Sketcher.Constraint("Diameter", 1, 2.5),
    Sketcher.Constraint("DistanceX", 2, 3, 0, 3, 21.0),
    Sketcher.Constraint("DistanceY", 4, 3, 0, 3, 56.5),
    Sketcher.Constraint("DistanceX", 0, 3, -1, 1, 162.5595),
    Sketcher.Constraint("DistanceY", -1, 1, 0, 3, 37.4885),
])
pad7 = body.newObject("PartDesign::Pad", "Pad006")
pad7.Profile = sketch13
pad7.Length = 3
doc.recompute()

fillet = body.newObject("PartDesign::Fillet", "Fillet")
fillet.Base = (pad7, edges_at(pad7, [(-186.1, -27.052, -18.5)]))
fillet.Radius = 4

sketch14 = body.newObject("Sketcher::SketchObject", "Sketch013")
sketch14.AttachmentSupport = (doc.getObject("XY_Plane"), [""])
sketch14.MapMode = "FlatFace"
sketch14.AttachmentOffset = App.Placement(App.Vector(0, 0, -17), App.Rotation())
add_polygon(sketch14, [(-159, -28), (-159, -22), (-187, -22), (-187, -28)])
sketch14.addConstraint([
    Sketcher.Constraint("Vertical", 0),
    Sketcher.Constraint("Horizontal", 1),
    Sketcher.Constraint("Vertical", 2),
    Sketcher.Constraint("Horizontal", 3),
    Sketcher.Constraint("DistanceX", 1, 2, 1, 1, 28.131),
    Sketcher.Constraint("DistanceY", 0, 1, 0, 2, 5.2477),
    Sketcher.Constraint("DistanceX", 0, 2, -1, 1, 159.1004),
    Sketcher.Constraint("DistanceY", 0, 2, -1, 1, 22.3407),
])
pocket7 = body.newObject("PartDesign::Pocket", "Pocket006")
pocket7.Profile = sketch14
pocket7.Length = 3
doc.recompute()

fillet2 = body.newObject("PartDesign::Fillet", "Fillet001")
fillet2.Base = (pocket7, edges_at(pocket7, [(-186.1, -22.341, -18.5)]))
fillet2.Radius = 4
doc.recompute()

fillet3 = body.newObject("PartDesign::Fillet", "Fillet002")
fillet3.Base = (fillet2, edges_at(fillet2, [(-159.1, 39.948, -18.5), (-186.1, 39.948, -18.5)]))
fillet3.Radius = 3

doc.recompute()
